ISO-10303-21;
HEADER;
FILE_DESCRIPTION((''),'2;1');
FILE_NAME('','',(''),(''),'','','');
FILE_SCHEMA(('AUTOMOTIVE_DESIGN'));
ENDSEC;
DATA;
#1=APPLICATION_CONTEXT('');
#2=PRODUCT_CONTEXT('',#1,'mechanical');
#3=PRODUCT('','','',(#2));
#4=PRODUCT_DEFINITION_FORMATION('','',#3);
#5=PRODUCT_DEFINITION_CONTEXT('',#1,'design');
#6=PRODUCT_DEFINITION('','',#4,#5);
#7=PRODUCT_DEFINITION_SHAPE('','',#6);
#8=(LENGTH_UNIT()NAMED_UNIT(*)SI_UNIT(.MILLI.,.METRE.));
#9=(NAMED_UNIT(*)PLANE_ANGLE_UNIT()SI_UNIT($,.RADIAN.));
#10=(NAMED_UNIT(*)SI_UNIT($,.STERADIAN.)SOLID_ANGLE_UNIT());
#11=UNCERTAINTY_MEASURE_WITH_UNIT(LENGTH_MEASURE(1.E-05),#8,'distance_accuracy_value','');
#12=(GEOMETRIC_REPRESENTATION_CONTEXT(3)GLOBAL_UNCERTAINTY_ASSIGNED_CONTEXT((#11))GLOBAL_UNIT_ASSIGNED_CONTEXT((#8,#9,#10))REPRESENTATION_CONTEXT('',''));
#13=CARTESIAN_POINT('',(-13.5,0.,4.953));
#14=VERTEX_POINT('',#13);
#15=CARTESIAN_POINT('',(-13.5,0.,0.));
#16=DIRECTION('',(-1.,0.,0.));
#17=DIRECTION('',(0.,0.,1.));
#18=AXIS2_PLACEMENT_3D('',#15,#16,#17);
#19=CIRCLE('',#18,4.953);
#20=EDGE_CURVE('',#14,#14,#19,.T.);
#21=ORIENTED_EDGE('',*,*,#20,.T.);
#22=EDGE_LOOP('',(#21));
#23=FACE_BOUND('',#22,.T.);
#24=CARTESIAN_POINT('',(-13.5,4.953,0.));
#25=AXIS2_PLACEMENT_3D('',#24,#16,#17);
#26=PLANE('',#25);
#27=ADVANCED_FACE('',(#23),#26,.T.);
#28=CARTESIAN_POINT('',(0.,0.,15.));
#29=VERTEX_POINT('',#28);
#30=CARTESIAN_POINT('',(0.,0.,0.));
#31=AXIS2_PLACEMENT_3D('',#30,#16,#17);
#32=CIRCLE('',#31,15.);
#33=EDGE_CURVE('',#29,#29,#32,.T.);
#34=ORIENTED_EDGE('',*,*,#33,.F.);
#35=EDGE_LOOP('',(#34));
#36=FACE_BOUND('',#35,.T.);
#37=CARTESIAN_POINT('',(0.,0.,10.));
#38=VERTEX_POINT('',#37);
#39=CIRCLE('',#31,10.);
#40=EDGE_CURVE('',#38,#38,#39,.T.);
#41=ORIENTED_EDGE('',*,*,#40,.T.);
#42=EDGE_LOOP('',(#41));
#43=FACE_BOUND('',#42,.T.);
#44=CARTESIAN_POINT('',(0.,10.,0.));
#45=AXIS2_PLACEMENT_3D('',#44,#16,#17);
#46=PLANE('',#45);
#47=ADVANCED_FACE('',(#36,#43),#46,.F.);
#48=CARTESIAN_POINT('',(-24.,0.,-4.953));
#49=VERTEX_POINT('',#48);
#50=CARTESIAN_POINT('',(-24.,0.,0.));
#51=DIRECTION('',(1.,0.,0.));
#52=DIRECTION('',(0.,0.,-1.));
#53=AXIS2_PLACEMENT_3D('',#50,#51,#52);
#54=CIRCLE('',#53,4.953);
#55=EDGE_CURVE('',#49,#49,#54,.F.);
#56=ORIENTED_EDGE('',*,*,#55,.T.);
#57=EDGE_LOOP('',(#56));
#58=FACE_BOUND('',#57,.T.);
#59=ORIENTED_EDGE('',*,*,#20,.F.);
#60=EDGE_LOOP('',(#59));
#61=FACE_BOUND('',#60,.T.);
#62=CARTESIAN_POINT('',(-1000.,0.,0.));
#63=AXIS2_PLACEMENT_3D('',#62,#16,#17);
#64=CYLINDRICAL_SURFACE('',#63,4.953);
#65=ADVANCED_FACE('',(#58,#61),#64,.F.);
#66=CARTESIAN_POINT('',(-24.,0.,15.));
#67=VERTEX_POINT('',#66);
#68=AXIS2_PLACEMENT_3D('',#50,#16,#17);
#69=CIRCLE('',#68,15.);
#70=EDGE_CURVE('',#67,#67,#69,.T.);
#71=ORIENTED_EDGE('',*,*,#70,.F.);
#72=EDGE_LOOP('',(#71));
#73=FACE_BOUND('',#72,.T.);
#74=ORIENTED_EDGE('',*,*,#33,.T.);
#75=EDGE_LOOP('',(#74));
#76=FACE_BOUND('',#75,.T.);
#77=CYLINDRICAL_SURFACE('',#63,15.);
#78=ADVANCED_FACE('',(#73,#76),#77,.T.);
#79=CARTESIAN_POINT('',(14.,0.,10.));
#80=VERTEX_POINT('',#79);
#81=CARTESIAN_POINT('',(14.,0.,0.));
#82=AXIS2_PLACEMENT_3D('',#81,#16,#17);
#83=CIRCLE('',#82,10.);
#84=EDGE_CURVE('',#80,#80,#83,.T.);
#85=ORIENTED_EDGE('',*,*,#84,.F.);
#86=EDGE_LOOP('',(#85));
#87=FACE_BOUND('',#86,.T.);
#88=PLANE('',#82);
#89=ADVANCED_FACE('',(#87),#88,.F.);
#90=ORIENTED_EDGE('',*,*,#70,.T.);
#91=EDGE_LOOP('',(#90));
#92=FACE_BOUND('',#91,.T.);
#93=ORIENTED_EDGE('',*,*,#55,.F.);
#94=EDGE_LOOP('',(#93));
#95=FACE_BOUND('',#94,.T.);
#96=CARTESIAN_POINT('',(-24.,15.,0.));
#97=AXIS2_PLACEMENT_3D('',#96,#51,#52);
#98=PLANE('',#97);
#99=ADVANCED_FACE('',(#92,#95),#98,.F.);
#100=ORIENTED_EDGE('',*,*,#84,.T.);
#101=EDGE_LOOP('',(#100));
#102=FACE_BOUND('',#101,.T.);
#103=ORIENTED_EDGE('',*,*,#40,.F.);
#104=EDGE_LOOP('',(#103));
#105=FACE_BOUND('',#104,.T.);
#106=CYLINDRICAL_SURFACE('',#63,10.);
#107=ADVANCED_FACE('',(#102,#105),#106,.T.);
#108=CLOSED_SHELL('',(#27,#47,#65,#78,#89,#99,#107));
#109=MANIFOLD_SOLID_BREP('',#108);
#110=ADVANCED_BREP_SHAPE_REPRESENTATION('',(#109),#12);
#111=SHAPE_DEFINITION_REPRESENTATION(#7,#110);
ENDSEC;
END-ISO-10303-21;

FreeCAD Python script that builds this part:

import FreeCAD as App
import Part
import Sketcher
Q = App.Units.Quantity


def add_polygon(sketch, points):
    """Adds a closed chain of lines whose ends are joined by coincident constraints."""
    first, n = sketch.GeometryCount, len(points)
    for a, b in zip(points, points[1:] + points[:1]):
        sketch.addGeometry(Part.LineSegment(App.Vector(*a, 0), App.Vector(*b, 0)), False)
    for i in range(n):
        sketch.addConstraint(Sketcher.Constraint("Coincident", first + i, 2, first + (i + 1) % n, 1))

doc = App.newDocument("Part")
params = doc.addObject("Spreadsheet::Sheet", "Params")
for row, (alias, value) in enumerate([
    ("sketch1_width", "14 mm"),
    ("sketch1_width2", "24 mm"),
    ("sketch1_height", "10 mm"),
    ("sketch1_height2", "5 mm"),
    ("revolution_angle", "360 deg"),
    ("sketch2_width", "11.5 mm"),
    ("groove_angle", "360 deg"),
], start=1):
    params.set(f"A{row}", alias)
    params.set(f"B{row}", "=" + value)
    params.setAlias(f"B{row}", alias)

body = doc.addObject("PartDesign::Body", "Body")

# Sketch on XY plane
sketch1 = body.newObject("Sketcher::SketchObject", "Sketch")
sketch1.AttachmentSupport = (doc.getObject("XY_Plane"), [""])
sketch1.MapMode = "FlatFace"
add_polygon(sketch1, [(14, 0), (14, 10), (0, 10), (0, 15), (-24, 15), (-24, 0)])  # lines 0-5
sketch1.addConstraint([
    Sketcher.Constraint("Vertical", 0),
    Sketcher.Constraint("Horizontal", 1),
    Sketcher.Constraint("Vertical", 2),
    Sketcher.Constraint("Horizontal", 3),
    Sketcher.Constraint("Vertical", 4),
    Sketcher.Constraint("Horizontal", 5),
    Sketcher.Constraint("PointOnObject", 1, 2, -2),
    Sketcher.Constraint("PointOnObject", 4, 2, -1),
    Sketcher.Constraint("DistanceX", 1, 2, 1, 1, Q("14 mm")),
    Sketcher.Constraint("DistanceX", 3, 2, 3, 1, Q("24 mm")),
    Sketcher.Constraint("DistanceY", 0, 1, 0, 2, Q("10 mm")),
    Sketcher.Constraint("DistanceY", 2, 1, 2, 2, Q("5 mm")),
])
sketch1.setExpression("Constraints[14]", "Params.sketch1_width")
sketch1.setExpression("Constraints[15]", "Params.sketch1_width2")
sketch1.setExpression("Constraints[16]", "Params.sketch1_height")
sketch1.setExpression("Constraints[17]", "Params.sketch1_height2")
revolution = body.newObject("PartDesign::Revolution", "Revolution")
revolution.Profile = sketch1
revolution.ReferenceAxis = (sketch1, ["H_Axis"])
revolution.setExpression("Angle", "Params.revolution_angle")

# Sketch on XY plane
sketch2 = body.newObject("Sketcher::SketchObject", "Sketch001")
sketch2.AttachmentSupport = (doc.getObject("XY_Plane"), [""])
sketch2.MapMode = "FlatFace"
add_polygon(sketch2, [(-25, 4.953), (-25, 0), (-13.5, 0), (-13.5, 4.953)])  # lines 0-3
sketch2.addConstraint([
    Sketcher.Constraint("Vertical", 0),
    Sketcher.Constraint("Horizontal", 1),
    Sketcher.Constraint("Vertical", 2),
    Sketcher.Constraint("Horizontal", 3),
    Sketcher.Constraint("PointOnObject", 0, 2, -1),
    Sketcher.Constraint("DistanceX", 1, 1, 1, 2, Q("11.5 mm")),
    Sketcher.Constraint("DistanceX", 0, 2, -1, 1, Q("25 mm")),
    Sketcher.Constraint("DistanceY", 0, 2, 0, 1, Q("4.953 mm")),
])
sketch2.setExpression("Constraints[9]", "Params.sketch2_width")
groove = body.newObject("PartDesign::Groove", "Groove")
groove.Profile = sketch2
groove.ReferenceAxis = (sketch2, ["H_Axis"])
groove.setExpression("Angle", "Params.groove_angle")

doc.recompute()
